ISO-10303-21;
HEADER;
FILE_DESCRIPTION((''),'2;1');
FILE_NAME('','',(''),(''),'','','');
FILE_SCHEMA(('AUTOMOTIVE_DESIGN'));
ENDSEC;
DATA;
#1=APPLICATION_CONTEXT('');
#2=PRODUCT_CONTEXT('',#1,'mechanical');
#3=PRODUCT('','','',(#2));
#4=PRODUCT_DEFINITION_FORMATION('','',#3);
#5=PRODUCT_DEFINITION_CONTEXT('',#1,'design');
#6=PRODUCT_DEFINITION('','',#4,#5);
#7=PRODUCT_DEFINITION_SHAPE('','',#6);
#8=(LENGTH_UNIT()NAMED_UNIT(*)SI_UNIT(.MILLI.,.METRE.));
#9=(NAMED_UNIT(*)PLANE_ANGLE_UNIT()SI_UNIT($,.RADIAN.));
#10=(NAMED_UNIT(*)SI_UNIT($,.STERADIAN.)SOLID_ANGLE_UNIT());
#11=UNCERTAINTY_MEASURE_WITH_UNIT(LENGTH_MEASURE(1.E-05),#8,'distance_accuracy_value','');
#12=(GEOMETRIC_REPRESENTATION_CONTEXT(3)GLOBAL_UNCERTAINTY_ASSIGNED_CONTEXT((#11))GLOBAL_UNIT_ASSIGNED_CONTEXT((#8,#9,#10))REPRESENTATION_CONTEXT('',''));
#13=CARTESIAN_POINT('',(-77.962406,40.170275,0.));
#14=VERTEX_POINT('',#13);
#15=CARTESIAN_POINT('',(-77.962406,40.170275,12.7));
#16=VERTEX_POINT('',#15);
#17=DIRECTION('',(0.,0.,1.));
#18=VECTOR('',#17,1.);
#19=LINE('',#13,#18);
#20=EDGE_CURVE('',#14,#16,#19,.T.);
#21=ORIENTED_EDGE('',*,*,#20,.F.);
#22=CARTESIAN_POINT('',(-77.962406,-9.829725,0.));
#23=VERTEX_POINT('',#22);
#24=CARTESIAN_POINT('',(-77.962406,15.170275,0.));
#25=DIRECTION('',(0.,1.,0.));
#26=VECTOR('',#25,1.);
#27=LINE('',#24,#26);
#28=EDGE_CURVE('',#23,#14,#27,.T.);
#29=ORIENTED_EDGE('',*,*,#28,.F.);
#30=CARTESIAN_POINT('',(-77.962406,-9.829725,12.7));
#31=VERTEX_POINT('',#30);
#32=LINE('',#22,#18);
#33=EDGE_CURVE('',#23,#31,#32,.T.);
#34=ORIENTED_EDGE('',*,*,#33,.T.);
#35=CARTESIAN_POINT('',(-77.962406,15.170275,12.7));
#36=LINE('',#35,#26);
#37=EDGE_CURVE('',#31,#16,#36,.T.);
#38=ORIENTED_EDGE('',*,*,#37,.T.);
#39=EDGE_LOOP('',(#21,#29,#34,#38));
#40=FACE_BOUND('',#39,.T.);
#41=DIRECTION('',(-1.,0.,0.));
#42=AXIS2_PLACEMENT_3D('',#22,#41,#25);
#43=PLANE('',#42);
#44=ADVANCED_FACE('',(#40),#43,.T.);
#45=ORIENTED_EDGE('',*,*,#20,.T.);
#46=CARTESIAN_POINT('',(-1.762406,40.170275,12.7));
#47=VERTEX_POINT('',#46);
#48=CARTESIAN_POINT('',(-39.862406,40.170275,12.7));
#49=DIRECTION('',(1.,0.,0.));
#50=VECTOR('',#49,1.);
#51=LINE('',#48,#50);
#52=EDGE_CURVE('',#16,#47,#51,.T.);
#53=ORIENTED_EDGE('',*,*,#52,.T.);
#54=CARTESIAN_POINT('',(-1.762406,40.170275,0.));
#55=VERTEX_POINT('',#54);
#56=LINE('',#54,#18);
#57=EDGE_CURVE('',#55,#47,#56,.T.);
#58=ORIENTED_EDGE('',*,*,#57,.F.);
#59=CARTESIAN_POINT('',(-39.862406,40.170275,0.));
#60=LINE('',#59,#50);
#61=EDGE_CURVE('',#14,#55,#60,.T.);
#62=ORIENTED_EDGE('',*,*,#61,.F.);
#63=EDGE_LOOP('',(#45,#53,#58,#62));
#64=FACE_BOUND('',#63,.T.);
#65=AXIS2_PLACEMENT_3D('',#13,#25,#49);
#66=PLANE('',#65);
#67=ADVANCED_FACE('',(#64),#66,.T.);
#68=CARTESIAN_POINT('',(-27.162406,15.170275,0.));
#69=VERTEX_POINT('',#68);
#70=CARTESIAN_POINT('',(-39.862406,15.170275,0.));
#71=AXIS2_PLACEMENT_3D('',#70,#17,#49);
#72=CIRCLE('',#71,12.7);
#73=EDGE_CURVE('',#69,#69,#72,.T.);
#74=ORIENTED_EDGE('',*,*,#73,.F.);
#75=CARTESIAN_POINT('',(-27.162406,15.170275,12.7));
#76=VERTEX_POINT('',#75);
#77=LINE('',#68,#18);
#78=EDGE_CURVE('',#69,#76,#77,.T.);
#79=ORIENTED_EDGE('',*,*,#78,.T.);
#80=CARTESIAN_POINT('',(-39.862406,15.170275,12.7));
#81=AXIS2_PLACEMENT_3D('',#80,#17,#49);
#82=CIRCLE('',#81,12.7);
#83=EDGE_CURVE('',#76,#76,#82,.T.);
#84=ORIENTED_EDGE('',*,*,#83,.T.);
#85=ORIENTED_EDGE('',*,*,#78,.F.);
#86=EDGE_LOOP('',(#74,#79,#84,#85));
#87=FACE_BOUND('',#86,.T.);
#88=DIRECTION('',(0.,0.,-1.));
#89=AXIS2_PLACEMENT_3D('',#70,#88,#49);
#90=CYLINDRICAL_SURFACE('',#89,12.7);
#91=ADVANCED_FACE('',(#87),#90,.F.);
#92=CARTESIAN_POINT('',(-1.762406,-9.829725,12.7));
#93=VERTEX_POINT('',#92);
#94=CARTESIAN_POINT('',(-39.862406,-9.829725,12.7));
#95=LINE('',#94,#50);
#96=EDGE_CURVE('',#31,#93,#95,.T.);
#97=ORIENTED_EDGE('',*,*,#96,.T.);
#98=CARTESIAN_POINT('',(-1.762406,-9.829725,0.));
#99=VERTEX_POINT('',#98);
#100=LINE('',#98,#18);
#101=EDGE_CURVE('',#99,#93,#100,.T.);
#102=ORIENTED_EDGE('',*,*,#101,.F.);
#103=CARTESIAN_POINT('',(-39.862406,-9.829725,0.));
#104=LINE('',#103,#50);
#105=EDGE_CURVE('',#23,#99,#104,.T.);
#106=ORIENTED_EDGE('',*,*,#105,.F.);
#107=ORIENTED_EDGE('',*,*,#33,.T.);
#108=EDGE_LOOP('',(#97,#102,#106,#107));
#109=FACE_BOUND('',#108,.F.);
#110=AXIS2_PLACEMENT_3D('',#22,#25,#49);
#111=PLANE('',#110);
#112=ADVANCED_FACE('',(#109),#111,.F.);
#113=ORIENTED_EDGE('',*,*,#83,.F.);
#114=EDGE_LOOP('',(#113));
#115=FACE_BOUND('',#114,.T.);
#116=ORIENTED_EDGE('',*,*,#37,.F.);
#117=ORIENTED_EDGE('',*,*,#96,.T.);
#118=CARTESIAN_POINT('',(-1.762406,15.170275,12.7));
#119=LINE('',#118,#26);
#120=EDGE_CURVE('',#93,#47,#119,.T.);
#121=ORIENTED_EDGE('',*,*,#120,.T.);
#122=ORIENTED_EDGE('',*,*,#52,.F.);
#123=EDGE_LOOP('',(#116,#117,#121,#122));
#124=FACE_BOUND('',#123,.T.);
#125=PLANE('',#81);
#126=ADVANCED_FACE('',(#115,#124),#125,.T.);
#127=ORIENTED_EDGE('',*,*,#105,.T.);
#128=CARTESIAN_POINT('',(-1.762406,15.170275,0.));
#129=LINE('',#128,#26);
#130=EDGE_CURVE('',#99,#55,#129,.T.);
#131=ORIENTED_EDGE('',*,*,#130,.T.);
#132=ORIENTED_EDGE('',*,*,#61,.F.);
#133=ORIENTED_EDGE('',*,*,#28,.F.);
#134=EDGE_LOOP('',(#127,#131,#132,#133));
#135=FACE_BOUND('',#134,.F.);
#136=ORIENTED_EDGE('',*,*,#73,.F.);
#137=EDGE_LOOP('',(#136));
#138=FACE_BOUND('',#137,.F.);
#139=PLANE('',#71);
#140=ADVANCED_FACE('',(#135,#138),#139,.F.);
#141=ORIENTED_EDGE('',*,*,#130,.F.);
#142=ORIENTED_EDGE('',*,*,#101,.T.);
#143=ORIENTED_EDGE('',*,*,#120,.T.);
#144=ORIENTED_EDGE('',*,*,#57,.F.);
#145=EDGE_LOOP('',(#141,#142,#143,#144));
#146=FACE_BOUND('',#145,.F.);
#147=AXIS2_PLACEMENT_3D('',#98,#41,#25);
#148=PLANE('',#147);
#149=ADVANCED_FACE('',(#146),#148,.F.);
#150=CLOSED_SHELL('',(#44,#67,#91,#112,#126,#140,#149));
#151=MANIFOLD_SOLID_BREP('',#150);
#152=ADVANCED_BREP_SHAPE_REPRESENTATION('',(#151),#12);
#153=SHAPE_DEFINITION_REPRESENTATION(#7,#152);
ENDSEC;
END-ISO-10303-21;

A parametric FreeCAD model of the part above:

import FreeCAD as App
import Part
import Sketcher
Q = App.Units.Quantity


def add_polygon(sketch, points):
    """Adds a closed chain of lines whose ends are joined by coincident constraints."""
    first, n = sketch.GeometryCount, len(points)
    for a, b in zip(points, points[1:] + points[:1]):
        sketch.addGeometry(Part.LineSegment(App.Vector(*a, 0), App.Vector(*b, 0)), False)
    for i in range(n):
        sketch.addConstraint(Sketcher.Constraint("Coincident", first + i, 2, first + (i + 1) % n, 1))

doc = App.newDocument("Part")
body = doc.addObject("PartDesign::Body", "Body")

# Sketch on XY plane
sketch1 = body.newObject("Sketcher::SketchObject", "Sketch")
sketch1.AttachmentSupport = (doc.getObject("XY_Plane"), [""])
sketch1.MapMode = "FlatFace"
add_polygon(sketch1, [(-78, 40), (-78, -10), (-2, -10), (-2, 40)])  # lines 0-3
sketch1.addGeometry(Part.Circle(App.Vector(-40, 15, 0), App.Vector(0, 0, 1), 13), False)  # 4
sketch1.addConstraint([
    Sketcher.Constraint("Vertical", 0),
    Sketcher.Constraint("Horizontal", 1),
    Sketcher.Constraint("Vertical", 2),
    Sketcher.Constraint("Horizontal", 3),
    Sketcher.Constraint("Diameter", 4, Q("1 in")),
    Sketcher.Constraint("DistanceX", 1, 1, 1, 2, Q("3 in")),
    Sketcher.Constraint("DistanceX", 0, 2, 4, 3, Q("1.5 in")),
    Sketcher.Constraint("DistanceY", 0, 2, 0, 1, 50.0),
    Sketcher.Constraint("DistanceY", 0, 2, 4, 3, 25.0),
    Sketcher.Constraint("DistanceX", 4, 3, -1, 1, 39.862406),
    Sketcher.Constraint("DistanceY", -1, 1, 4, 3, 15.170275),
])
pad1 = body.newObject("PartDesign::Pad", "Pad")
pad1.Profile = sketch1
pad1.Length = Q("0.5 in")

doc.recompute()
